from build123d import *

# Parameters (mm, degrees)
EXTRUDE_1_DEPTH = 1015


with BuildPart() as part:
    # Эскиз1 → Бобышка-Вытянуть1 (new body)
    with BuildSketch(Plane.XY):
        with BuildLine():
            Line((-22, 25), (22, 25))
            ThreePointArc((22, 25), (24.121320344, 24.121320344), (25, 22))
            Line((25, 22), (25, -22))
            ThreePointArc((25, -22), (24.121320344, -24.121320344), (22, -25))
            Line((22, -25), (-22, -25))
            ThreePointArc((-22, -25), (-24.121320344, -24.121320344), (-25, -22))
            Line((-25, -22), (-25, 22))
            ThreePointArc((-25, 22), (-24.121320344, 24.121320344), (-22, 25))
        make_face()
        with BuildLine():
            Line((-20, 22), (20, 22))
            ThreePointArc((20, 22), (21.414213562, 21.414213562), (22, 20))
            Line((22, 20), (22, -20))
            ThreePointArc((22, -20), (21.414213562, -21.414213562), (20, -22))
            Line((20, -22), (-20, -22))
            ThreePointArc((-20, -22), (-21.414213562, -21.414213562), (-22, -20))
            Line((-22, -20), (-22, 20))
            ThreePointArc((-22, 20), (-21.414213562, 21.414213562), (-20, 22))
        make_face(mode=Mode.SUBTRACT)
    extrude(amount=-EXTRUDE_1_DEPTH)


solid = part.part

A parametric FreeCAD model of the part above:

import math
import FreeCAD as App
import Part
import Sketcher

V = App.Vector

doc = App.newDocument("Part")
body = doc.addObject("PartDesign::Body", "Body")

sketch1 = body.newObject("Sketcher::SketchObject", "Sketch")
sketch1.AttachmentSupport = (doc.getObject("XY_Plane"), [""])
sketch1.MapMode = "FlatFace"
sketch1.addGeometry(Part.LineSegment(V(22, 25, 0), V(-22, 25, 0)), False)
sketch1.addGeometry(Part.ArcOfCircle(Part.Circle(V(-22, 22, 0), V(0, 0, 1), 3), math.radians(90), math.radians(180)), False)
sketch1.addGeometry(Part.LineSegment(V(-25, 22, 0), V(-25, -22, 0)), False)
sketch1.addGeometry(Part.ArcOfCircle(Part.Circle(V(-22, -22, 0), V(0, 0, 1), 3), math.radians(180), math.radians(270)), False)
sketch1.addGeometry(Part.LineSegment(V(-22, -25, 0), V(22, -25, 0)), False)
sketch1.addGeometry(Part.ArcOfCircle(Part.Circle(V(22, -22, 0), V(0, 0, 1), 3), math.radians(-90), math.radians(0)), False)
sketch1.addGeometry(Part.LineSegment(V(25, -22, 0), V(25, 22, 0)), False)
sketch1.addGeometry(Part.ArcOfCircle(Part.Circle(V(22, 22, 0), V(0, 0, 1), 3), math.radians(0), math.radians(90)), False)
sketch1.addGeometry(Part.LineSegment(V(-20, 22, 0), V(20, 22, 0)), False)
sketch1.addGeometry(Part.ArcOfCircle(Part.Circle(V(20, 20, 0), V(0, 0, 1), 2), math.radians(0), math.radians(90)), False)
sketch1.addGeometry(Part.LineSegment(V(22, 20, 0), V(22, -20, 0)), False)
sketch1.addGeometry(Part.ArcOfCircle(Part.Circle(V(20, -20, 0), V(0, 0, 1), 2), math.radians(-90), math.radians(0)), False)
sketch1.addGeometry(Part.LineSegment(V(20, -22, 0), V(-20, -22, 0)), False)
sketch1.addGeometry(Part.ArcOfCircle(Part.Circle(V(-20, -20, 0), V(0, 0, 1), 2), math.radians(-180), math.radians(-90)), False)
sketch1.addGeometry(Part.LineSegment(V(-22, -20, 0), V(-22, 20, 0)), False)
sketch1.addGeometry(Part.ArcOfCircle(Part.Circle(V(-20, 20, 0), V(0, 0, 1), 2), math.radians(90), math.radians(180)), False)
sketch1.addConstraint(Sketcher.Constraint("Tangent", 0, 2, 1, 1))
sketch1.addConstraint(Sketcher.Constraint("Tangent", 1, 2, 2, 1))
sketch1.addConstraint(Sketcher.Constraint("Tangent", 2, 2, 3, 1))
sketch1.addConstraint(Sketcher.Constraint("Tangent", 3, 2, 4, 1))
sketch1.addConstraint(Sketcher.Constraint("Tangent", 4, 2, 5, 1))
sketch1.addConstraint(Sketcher.Constraint("Tangent", 5, 2, 6, 1))
sketch1.addConstraint(Sketcher.Constraint("Tangent", 6, 2, 7, 1))
sketch1.addConstraint(Sketcher.Constraint("Tangent", 7, 2, 0, 1))
sketch1.addConstraint(Sketcher.Constraint("Tangent", 8, 2, 9, 2))
sketch1.addConstraint(Sketcher.Constraint("Tangent", 9, 1, 10, 1))
sketch1.addConstraint(Sketcher.Constraint("Tangent", 10, 2, 11, 2))
sketch1.addConstraint(Sketcher.Constraint("Tangent", 11, 1, 12, 1))
sketch1.addConstraint(Sketcher.Constraint("Tangent", 12, 2, 13, 2))
sketch1.addConstraint(Sketcher.Constraint("Tangent", 13, 1, 14, 1))
sketch1.addConstraint(Sketcher.Constraint("Tangent", 14, 2, 15, 2))
sketch1.addConstraint(Sketcher.Constraint("Tangent", 15, 1, 8, 1))
sketch1.addConstraint(Sketcher.Constraint("Horizontal", 0))
sketch1.addConstraint(Sketcher.Constraint("Vertical", 2))
sketch1.addConstraint(Sketcher.Constraint("Horizontal", 4))
sketch1.addConstraint(Sketcher.Constraint("Vertical", 6))
sketch1.addConstraint(Sketcher.Constraint("Horizontal", 8))
sketch1.addConstraint(Sketcher.Constraint("Vertical", 10))
sketch1.addConstraint(Sketcher.Constraint("Horizontal", 12))
sketch1.addConstraint(Sketcher.Constraint("Vertical", 14))
sketch1.addConstraint(Sketcher.Constraint("Equal", 1, 3))
sketch1.addConstraint(Sketcher.Constraint("Equal", 3, 5))
sketch1.addConstraint(Sketcher.Constraint("Equal", 5, 7))
sketch1.addConstraint(Sketcher.Constraint("Equal", 9, 11))
sketch1.addConstraint(Sketcher.Constraint("Equal", 11, 13))
sketch1.addConstraint(Sketcher.Constraint("Equal", 13, 15))
sketch1.addConstraint(Sketcher.Constraint("Symmetric", 1, 3, 5, 3, -1, 1))
sketch1.addConstraint(Sketcher.Constraint("Symmetric", 9, 3, 13, 3, -1, 1))
sketch1.addConstraint(Sketcher.Constraint("Horizontal", 6, 2, 8, 2))
sketch1.addConstraint(Sketcher.Constraint("Vertical", 7, 2, 9, 1))
sketch1.addConstraint(Sketcher.Constraint("Equal", 4, 2))
sketch1.addConstraint(Sketcher.Constraint("Radius", 1, 3.0))
sketch1.addConstraint(Sketcher.Constraint("Radius", 9, 2.0))
sketch1.addConstraint(Sketcher.Constraint("DistanceX", 0, 2, 0, 1, 44.0))
pad1 = body.newObject("PartDesign::Pad", "Pad")
pad1.Profile = sketch1
pad1.Length = 1015
pad1.Reversed = True

doc.recompute()
